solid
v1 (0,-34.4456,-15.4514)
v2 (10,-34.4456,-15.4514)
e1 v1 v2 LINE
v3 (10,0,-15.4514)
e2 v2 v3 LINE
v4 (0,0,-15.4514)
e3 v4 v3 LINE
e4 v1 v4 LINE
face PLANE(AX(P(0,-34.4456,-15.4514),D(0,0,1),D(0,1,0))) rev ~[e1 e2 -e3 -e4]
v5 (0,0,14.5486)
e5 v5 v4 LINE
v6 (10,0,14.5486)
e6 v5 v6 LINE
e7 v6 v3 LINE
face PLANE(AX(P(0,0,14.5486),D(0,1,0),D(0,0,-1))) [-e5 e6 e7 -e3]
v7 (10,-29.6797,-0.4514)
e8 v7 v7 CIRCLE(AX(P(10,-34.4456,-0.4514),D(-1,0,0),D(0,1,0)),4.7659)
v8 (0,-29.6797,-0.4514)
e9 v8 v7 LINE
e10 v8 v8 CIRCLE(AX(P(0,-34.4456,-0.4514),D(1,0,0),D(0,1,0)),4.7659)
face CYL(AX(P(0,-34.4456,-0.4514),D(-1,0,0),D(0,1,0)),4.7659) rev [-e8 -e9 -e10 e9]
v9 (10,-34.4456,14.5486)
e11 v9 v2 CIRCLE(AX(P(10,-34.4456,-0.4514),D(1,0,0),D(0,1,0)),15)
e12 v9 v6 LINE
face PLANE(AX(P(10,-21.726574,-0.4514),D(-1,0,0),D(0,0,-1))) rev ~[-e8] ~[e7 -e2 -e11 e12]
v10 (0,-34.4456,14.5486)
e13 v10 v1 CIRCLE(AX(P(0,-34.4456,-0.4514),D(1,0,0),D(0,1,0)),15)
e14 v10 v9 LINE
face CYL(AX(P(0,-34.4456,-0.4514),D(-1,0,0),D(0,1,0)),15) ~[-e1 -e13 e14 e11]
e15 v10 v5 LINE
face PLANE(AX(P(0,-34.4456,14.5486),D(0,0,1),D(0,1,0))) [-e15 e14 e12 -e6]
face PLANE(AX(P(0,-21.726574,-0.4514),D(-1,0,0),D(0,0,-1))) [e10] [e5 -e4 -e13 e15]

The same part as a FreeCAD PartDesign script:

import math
import FreeCAD as App
import Part
import Sketcher
from FreeCAD import Vector

doc = App.newDocument("Part")
params = doc.addObject("Spreadsheet::Sheet", "Params")
for row, (alias, value) in enumerate([
    ("pad1_length", "0.3937008 in"),
    ("pocket1_length", "2.125 in"),
], start=1):
    params.set(f"A{row}", alias)
    params.set(f"B{row}", "=" + value)
    params.setAlias(f"B{row}", alias)

body = doc.addObject("PartDesign::Body", "Body")

# Sketch on YZ plane
sketch1 = body.newObject("Sketcher::SketchObject", "Sketch")
sketch1.AttachmentSupport = (doc.getObject("YZ_Plane"), [""])
sketch1.MapMode = "FlatFace"
sketch1.addGeometry(Part.LineSegment(Vector(0, 14.5486, 0), Vector(-34.4456, 14.5486, 0)), False)
sketch1.addGeometry(Part.ArcOfCircle(Part.Circle(Vector(-34.4456, -0.4514, 0), Vector(0, 0, 1), 15), math.radians(90), math.radians(270)), False)
sketch1.addGeometry(Part.LineSegment(Vector(-34.4456, -15.4514, 0), Vector(0, -15.4514, 0)), False)
sketch1.addGeometry(Part.LineSegment(Vector(0, -15.4514, 0), Vector(0, 14.5486, 0)), False)
sketch1.addConstraint(Sketcher.Constraint("Tangent", 0, 2, 1, 1))
sketch1.addConstraint(Sketcher.Constraint("Tangent", 1, 2, 2, 1))
sketch1.addConstraint(Sketcher.Constraint("Coincident", 2, 2, 3, 1))
sketch1.addConstraint(Sketcher.Constraint("Coincident", 3, 2, 0, 1))
sketch1.addConstraint(Sketcher.Constraint("Horizontal", 0))
sketch1.addConstraint(Sketcher.Constraint("Horizontal", 2))
sketch1.addConstraint(Sketcher.Constraint("Vertical", 3))
sketch1.addConstraint(Sketcher.Constraint("PointOnObject", 2, 2, -2))
sketch1.addConstraint(Sketcher.Constraint("Radius", 1, 15.0))
sketch1.addConstraint(Sketcher.Constraint("DistanceX", 0, 2, 0, 1, 34.4456))
sketch1.addConstraint(Sketcher.Constraint("DistanceY", 1, 3, -1, 1, 0.4514))
pad1 = body.newObject("PartDesign::Pad", "Pad")
pad1.Profile = sketch1
pad1.setExpression("Length", "Params.pad1_length")

# Sketch on YZ plane
sketch2 = body.newObject("Sketcher::SketchObject", "Sketch001")
sketch2.AttachmentSupport = (doc.getObject("YZ_Plane"), [""])
sketch2.MapMode = "FlatFace"
sketch2.addGeometry(Part.Circle(Vector(-34.4456, -0.4514, 0), Vector(0, 0, 1), 4.7659), False)
sketch2.addConstraint(Sketcher.Constraint("Diameter", 0, 9.5318))
sketch2.addConstraint(Sketcher.Constraint("DistanceX", 0, 3, -1, 1, 34.4456))
sketch2.addConstraint(Sketcher.Constraint("DistanceY", 0, 3, -1, 1, 0.4514))
pocket1 = body.newObject("PartDesign::Pocket", "Pocket")
pocket1.Profile = sketch2
pocket1.setExpression("Length", "Params.pocket1_length")
pocket1.Reversed = True

doc.recompute()
